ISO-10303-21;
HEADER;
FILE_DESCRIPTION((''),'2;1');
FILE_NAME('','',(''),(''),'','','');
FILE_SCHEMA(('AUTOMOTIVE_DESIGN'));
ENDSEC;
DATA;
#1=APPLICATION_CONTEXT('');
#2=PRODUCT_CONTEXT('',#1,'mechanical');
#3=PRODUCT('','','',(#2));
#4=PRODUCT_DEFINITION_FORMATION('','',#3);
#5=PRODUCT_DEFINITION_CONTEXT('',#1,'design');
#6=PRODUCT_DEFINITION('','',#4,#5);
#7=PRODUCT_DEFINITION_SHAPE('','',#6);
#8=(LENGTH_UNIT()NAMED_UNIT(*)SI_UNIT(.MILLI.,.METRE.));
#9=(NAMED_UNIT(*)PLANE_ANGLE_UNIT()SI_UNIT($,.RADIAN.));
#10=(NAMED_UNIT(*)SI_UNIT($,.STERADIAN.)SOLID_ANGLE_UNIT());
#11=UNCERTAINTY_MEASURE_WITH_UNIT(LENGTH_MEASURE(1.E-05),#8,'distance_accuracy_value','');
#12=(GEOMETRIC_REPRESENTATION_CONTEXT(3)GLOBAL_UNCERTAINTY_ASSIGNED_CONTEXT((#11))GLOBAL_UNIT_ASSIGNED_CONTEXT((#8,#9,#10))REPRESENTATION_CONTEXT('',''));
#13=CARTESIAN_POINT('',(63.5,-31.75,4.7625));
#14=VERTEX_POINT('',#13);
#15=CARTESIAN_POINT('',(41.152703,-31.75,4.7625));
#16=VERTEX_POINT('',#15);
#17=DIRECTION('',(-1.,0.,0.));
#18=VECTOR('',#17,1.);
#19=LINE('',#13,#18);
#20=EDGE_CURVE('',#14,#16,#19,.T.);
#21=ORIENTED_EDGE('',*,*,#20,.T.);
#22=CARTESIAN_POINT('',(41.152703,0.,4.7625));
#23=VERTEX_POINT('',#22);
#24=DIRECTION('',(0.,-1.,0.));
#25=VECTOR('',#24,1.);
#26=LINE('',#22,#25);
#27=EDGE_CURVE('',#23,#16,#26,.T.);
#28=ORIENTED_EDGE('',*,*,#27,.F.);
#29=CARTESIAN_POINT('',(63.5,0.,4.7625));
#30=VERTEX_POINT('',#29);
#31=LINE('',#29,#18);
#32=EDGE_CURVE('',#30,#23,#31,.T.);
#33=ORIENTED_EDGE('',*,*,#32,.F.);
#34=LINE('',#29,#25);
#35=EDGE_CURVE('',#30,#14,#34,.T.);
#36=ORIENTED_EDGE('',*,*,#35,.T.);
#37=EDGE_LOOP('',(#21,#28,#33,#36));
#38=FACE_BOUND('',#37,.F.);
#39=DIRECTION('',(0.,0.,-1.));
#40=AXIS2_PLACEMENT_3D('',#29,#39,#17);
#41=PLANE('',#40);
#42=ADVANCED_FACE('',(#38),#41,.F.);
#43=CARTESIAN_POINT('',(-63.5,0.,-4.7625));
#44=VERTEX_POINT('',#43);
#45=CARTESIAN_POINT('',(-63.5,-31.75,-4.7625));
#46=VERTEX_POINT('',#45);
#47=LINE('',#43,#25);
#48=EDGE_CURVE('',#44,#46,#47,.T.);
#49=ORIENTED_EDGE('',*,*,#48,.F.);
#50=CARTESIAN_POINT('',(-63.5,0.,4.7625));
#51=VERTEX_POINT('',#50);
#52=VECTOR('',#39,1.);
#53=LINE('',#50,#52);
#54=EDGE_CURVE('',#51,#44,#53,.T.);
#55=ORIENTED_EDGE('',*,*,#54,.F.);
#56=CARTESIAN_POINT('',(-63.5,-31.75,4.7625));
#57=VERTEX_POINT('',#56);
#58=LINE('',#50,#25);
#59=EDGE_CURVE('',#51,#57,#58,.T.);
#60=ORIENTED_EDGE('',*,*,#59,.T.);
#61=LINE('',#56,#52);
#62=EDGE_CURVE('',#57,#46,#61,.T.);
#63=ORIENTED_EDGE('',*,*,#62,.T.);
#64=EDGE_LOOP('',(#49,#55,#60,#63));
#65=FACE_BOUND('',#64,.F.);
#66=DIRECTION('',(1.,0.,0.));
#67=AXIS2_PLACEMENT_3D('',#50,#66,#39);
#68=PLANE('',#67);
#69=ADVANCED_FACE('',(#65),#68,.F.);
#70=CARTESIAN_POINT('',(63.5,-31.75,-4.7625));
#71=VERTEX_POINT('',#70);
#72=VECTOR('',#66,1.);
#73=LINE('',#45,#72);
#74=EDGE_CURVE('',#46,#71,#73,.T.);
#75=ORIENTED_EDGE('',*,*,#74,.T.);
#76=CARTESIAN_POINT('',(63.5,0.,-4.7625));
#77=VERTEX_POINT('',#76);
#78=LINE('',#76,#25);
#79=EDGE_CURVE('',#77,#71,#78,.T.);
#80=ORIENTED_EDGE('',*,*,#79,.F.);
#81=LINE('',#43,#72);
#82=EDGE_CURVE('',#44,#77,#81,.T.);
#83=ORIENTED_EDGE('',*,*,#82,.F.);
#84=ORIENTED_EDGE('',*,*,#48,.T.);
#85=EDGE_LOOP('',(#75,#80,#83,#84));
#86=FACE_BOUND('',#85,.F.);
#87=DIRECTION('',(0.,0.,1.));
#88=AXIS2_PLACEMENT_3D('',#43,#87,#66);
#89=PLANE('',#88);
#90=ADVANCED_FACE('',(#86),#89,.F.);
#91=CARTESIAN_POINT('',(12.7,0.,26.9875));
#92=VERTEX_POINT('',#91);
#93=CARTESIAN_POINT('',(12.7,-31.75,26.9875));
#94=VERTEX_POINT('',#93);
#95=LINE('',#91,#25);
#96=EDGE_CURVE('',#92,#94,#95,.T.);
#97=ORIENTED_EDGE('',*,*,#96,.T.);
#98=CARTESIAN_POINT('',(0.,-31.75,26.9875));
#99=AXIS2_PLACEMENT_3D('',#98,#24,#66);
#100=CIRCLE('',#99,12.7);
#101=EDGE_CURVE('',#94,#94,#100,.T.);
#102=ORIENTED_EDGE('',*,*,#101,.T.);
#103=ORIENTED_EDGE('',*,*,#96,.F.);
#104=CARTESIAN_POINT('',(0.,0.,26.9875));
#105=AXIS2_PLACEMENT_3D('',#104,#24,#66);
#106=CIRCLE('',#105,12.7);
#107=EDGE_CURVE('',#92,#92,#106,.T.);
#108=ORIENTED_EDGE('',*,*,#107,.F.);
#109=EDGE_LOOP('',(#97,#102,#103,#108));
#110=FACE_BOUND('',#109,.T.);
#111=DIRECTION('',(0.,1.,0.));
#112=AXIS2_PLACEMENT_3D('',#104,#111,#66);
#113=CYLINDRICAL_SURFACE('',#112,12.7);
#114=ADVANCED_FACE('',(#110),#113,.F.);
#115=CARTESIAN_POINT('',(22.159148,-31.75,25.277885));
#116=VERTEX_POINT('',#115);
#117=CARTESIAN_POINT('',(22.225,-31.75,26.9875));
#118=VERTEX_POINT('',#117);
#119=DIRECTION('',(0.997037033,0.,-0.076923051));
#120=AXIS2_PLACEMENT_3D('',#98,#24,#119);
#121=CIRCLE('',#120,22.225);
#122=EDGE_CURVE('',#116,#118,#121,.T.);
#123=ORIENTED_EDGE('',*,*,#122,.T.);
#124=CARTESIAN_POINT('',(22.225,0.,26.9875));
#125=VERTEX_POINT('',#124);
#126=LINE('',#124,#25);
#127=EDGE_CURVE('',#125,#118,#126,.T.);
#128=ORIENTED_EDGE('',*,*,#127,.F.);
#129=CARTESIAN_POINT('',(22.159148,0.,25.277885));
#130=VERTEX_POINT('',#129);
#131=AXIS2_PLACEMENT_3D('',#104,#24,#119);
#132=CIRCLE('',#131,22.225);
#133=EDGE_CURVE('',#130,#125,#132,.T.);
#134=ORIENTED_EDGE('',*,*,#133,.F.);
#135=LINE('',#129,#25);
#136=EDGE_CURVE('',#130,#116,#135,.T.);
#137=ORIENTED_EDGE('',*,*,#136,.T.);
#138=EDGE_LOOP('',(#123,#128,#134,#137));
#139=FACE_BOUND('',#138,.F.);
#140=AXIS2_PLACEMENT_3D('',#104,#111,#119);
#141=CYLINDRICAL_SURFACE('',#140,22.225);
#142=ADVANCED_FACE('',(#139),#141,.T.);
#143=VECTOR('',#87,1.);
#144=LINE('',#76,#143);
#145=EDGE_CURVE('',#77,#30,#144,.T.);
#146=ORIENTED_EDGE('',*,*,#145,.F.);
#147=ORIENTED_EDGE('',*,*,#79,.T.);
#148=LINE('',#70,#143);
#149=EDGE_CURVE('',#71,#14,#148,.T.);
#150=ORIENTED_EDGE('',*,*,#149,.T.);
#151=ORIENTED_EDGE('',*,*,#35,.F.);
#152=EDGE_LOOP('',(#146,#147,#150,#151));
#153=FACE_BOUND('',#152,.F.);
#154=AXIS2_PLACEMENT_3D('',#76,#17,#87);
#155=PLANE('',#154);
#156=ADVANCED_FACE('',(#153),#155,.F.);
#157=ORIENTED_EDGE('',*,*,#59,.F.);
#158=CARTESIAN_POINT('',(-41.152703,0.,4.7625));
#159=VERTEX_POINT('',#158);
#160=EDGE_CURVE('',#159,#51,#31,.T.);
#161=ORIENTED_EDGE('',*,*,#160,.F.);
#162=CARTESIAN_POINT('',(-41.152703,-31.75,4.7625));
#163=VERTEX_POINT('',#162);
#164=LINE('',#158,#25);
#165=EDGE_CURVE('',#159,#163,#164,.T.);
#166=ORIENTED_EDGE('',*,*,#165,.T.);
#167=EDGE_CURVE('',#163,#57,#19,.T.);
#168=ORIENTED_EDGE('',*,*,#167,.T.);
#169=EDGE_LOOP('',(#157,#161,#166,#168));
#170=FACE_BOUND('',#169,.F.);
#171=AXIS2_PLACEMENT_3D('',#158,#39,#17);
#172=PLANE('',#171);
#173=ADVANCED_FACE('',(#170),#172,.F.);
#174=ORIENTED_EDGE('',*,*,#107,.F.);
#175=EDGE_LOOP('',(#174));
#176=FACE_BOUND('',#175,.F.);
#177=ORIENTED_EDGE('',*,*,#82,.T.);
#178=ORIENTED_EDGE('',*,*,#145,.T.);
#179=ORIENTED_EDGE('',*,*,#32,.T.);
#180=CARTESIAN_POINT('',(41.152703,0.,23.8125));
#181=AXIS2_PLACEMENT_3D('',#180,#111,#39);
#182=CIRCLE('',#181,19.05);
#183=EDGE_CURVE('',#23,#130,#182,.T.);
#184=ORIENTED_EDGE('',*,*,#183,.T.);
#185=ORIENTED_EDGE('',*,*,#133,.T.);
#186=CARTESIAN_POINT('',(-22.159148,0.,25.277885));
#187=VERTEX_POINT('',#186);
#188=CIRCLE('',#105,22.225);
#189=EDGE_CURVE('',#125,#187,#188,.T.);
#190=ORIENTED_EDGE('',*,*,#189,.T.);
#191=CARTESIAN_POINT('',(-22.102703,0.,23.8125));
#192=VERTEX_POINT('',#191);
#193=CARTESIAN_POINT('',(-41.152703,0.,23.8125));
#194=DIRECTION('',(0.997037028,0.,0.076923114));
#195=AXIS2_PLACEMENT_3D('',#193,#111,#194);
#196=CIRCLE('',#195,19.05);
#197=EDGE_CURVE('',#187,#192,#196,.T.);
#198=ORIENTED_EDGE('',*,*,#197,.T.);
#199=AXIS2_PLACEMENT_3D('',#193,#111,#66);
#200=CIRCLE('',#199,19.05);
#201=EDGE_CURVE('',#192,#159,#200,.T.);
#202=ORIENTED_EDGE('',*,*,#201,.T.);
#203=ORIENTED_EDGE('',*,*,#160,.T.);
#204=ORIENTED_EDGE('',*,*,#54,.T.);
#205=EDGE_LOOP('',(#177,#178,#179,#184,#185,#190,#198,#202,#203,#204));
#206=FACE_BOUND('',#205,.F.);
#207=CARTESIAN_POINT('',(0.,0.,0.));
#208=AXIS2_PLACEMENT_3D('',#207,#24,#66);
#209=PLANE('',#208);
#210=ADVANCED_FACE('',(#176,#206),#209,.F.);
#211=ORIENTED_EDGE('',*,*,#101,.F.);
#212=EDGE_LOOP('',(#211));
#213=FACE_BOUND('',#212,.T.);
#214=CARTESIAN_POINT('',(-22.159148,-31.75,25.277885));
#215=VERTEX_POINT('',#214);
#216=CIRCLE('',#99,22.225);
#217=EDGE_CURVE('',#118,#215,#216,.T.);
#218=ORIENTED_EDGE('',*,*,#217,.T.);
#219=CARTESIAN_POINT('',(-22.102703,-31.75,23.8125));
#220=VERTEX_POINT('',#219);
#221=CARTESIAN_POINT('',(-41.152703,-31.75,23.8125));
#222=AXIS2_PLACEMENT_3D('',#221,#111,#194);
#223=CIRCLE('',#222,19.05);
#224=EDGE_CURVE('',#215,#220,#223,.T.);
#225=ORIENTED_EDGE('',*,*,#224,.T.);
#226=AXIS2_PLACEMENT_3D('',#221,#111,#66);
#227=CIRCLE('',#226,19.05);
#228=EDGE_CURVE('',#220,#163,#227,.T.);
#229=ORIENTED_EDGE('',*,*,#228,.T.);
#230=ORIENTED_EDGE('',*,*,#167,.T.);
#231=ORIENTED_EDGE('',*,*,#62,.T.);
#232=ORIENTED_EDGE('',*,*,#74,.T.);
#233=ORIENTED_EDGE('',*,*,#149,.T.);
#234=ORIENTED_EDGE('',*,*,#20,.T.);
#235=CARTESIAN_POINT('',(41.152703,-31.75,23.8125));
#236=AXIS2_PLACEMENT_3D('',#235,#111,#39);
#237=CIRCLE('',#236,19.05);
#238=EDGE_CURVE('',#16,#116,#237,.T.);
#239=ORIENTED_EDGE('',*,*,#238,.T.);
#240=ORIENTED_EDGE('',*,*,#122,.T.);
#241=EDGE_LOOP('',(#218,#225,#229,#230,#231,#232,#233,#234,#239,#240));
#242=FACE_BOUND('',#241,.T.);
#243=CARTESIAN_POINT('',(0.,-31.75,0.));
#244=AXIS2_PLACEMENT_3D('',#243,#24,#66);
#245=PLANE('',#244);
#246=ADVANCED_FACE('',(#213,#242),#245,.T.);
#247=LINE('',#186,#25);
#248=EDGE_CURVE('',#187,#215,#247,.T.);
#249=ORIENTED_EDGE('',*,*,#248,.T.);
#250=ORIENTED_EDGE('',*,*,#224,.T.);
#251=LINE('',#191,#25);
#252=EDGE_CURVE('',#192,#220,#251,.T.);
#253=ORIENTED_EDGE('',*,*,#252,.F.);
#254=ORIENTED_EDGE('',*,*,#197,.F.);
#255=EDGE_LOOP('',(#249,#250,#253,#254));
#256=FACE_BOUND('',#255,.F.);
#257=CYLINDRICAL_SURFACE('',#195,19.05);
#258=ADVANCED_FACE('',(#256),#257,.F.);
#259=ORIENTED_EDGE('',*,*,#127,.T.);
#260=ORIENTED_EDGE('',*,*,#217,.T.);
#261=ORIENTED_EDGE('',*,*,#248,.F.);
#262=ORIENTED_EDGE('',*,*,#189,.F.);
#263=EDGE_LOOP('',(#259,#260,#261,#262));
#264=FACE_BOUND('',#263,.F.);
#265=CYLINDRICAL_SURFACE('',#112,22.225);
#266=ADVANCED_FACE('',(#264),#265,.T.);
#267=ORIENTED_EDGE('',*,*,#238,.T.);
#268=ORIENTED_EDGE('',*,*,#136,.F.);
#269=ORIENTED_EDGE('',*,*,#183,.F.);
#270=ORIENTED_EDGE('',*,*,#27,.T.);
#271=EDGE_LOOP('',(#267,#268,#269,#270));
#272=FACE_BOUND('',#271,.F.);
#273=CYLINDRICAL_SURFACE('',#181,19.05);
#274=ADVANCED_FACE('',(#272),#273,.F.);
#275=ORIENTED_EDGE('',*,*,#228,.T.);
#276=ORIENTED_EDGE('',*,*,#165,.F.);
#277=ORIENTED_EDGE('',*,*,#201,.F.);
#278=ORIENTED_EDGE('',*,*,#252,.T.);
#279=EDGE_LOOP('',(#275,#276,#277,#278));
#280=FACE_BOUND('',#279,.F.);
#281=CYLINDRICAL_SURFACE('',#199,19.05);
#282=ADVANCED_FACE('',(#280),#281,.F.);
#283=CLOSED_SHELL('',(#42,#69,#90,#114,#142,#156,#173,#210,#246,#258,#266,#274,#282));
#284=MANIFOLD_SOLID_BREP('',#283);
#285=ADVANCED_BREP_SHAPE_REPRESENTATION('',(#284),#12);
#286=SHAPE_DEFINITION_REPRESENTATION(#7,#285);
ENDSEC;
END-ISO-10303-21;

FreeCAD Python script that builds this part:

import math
import FreeCAD as App
import Part
import Sketcher
from FreeCAD import Vector
Q = App.Units.Quantity

doc = App.newDocument("Part")
body = doc.addObject("PartDesign::Body", "Body")

# Sketch on XZ plane
sketch1 = body.newObject("Sketcher::SketchObject", "Sketch")
sketch1.AttachmentSupport = (doc.getObject("XZ_Plane"), [""])
sketch1.MapMode = "FlatFace"
sketch1.addGeometry(Part.LineSegment(Vector(63.5, -4.8, 0), Vector(63.5, 4.8, 0)), False)
sketch1.addGeometry(Part.LineSegment(Vector(63.5, 4.8, 0), Vector(41.2, 4.8, 0)), False)
sketch1.addGeometry(Part.ArcOfCircle(Part.Circle(Vector(41.2, 23.8, 0), Vector(0, 0, 1), 19.1), math.radians(176), math.radians(270)), False)
sketch1.addGeometry(Part.ArcOfCircle(Part.Circle(Vector(0, 27, 0), Vector(0, 0, 1), 22.2), math.radians(-4.41), math.radians(0)), False)
sketch1.addGeometry(Part.ArcOfCircle(Part.Circle(Vector(0, 27, 0), Vector(0, 0, 1), 22.2), math.radians(0), math.radians(184)), False)
sketch1.addGeometry(Part.ArcOfCircle(Part.Circle(Vector(-41.2, 23.8, 0), Vector(0, 0, 1), 19.1), math.radians(0), math.radians(4.41)), False)
sketch1.addGeometry(Part.ArcOfCircle(Part.Circle(Vector(-41.2, 23.8, 0), Vector(0, 0, 1), 19.1), math.radians(-90), math.radians(0)), False)
sketch1.addGeometry(Part.LineSegment(Vector(-41.2, 4.8, 0), Vector(-63.5, 4.8, 0)), False)
sketch1.addGeometry(Part.LineSegment(Vector(-63.5, 4.8, 0), Vector(-63.5, -4.8, 0)), False)
sketch1.addGeometry(Part.LineSegment(Vector(-63.5, -4.8, 0), Vector(63.5, -4.8, 0)), False)
sketch1.addGeometry(Part.Circle(Vector(0, 27, 0), Vector(0, 0, 1), 12.7), False)
sketch1.addConstraint(Sketcher.Constraint("Coincident", 0, 2, 1, 1))
sketch1.addConstraint(Sketcher.Constraint("Tangent", 1, 2, 2, 2))
sketch1.addConstraint(Sketcher.Constraint("Tangent", 2, 1, 3, 1))
sketch1.addConstraint(Sketcher.Constraint("Tangent", 3, 2, 4, 1))
sketch1.addConstraint(Sketcher.Constraint("Tangent", 4, 2, 5, 2))
sketch1.addConstraint(Sketcher.Constraint("Tangent", 5, 1, 6, 2))
sketch1.addConstraint(Sketcher.Constraint("Tangent", 6, 1, 7, 1))
sketch1.addConstraint(Sketcher.Constraint("Coincident", 7, 2, 8, 1))
sketch1.addConstraint(Sketcher.Constraint("Coincident", 8, 2, 9, 1))
sketch1.addConstraint(Sketcher.Constraint("Coincident", 9, 2, 0, 1))
sketch1.addConstraint(Sketcher.Constraint("Vertical", 0))
sketch1.addConstraint(Sketcher.Constraint("Horizontal", 1))
sketch1.addConstraint(Sketcher.Constraint("Horizontal", 7))
sketch1.addConstraint(Sketcher.Constraint("Vertical", 8))
sketch1.addConstraint(Sketcher.Constraint("Horizontal", 9))
sketch1.addConstraint(Sketcher.Constraint("Coincident", 10, 3, 3, 3))
sketch1.addConstraint(Sketcher.Constraint("Equal", 3, 4))
sketch1.addConstraint(Sketcher.Constraint("Equal", 2, 5))
sketch1.addConstraint(Sketcher.Constraint("Equal", 5, 6))
sketch1.addConstraint(Sketcher.Constraint("Symmetric", 0, 2, 8, 2, -1, 1))
sketch1.addConstraint(Sketcher.Constraint("Symmetric", 2, 3, 5, 3, -2))
sketch1.addConstraint(Sketcher.Constraint("Horizontal", 10, 3, 3, 2))
sketch1.addConstraint(Sketcher.Constraint("Horizontal", 6, 3, 5, 1))
sketch1.addConstraint(Sketcher.Constraint("Diameter", 10, Q("1 in")))
sketch1.addConstraint(Sketcher.Constraint("DistanceX", 9, 1, 9, 2, Q("5 in")))
sketch1.addConstraint(Sketcher.Constraint("Radius", 2, Q("0.75 in")))
sketch1.addConstraint(Sketcher.Constraint("Radius", 3, Q("0.875 in")))
sketch1.addConstraint(Sketcher.Constraint("DistanceY", 0, 1, 0, 2, Q("0.375 in")))
sketch1.addConstraint(Sketcher.Constraint("DistanceY", 9, 2, 3, 2, Q("1.25 in")))
pad1 = body.newObject("PartDesign::Pad", "Pad")
pad1.Profile = sketch1
pad1.Length = Q("1.25 in")

doc.recompute()
